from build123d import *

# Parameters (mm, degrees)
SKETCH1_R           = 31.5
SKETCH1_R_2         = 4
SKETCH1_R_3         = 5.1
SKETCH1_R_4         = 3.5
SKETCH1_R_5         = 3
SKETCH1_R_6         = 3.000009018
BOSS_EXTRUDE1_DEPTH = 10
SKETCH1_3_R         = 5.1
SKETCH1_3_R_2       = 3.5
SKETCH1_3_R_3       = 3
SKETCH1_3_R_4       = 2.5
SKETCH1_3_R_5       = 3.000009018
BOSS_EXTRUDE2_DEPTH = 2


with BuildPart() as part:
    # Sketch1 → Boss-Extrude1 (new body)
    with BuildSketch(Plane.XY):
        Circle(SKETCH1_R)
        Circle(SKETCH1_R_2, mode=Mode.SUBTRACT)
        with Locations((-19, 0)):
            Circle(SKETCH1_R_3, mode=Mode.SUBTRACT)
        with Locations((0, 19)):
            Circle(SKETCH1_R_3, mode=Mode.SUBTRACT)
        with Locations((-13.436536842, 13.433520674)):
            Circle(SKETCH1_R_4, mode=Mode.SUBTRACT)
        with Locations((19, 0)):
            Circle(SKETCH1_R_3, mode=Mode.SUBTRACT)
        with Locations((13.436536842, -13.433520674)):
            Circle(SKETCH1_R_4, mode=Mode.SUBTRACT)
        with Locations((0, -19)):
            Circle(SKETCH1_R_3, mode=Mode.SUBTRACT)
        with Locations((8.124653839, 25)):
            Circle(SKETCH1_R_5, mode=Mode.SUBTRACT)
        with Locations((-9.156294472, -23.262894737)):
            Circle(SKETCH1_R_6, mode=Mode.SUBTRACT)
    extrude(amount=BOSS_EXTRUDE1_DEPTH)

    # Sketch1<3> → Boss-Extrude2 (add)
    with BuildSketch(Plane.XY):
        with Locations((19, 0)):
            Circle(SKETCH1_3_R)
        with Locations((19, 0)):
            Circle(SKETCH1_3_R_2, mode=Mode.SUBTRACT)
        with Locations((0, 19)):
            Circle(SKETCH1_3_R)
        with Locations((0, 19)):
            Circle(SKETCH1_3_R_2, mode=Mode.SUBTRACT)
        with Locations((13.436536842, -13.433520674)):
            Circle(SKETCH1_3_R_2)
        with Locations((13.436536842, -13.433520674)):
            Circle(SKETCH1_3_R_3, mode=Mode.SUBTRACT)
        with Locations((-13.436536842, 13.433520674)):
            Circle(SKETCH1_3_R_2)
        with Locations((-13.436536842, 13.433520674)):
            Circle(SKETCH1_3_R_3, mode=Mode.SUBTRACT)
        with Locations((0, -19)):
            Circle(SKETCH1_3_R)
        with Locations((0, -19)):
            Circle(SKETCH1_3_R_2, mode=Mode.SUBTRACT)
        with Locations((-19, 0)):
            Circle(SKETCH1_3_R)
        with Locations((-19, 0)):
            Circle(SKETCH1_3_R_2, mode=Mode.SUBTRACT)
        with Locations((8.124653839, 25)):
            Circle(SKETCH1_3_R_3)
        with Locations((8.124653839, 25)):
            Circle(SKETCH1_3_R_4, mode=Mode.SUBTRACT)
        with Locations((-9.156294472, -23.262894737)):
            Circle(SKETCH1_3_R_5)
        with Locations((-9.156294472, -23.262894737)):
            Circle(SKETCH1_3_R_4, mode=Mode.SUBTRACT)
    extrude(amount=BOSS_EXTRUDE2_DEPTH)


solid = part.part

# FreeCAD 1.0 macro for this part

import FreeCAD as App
import Part
import Sketcher

doc = App.newDocument("Part")
body = doc.addObject("PartDesign::Body", "Body")

sketch1 = body.newObject("Sketcher::SketchObject", "Sketch")
sketch1.AttachmentSupport = (doc.getObject("XY_Plane"), [""])
sketch1.MapMode = "FlatFace"
sketch1.addGeometry([
    Part.Circle(App.Vector(0, 0, 0), App.Vector(0, 0, 1), 31.5),
    Part.Circle(App.Vector(-9.156294, -23.262895, 0), App.Vector(0, 0, 1), 3.000009),
    Part.Circle(App.Vector(-19, 0, 0), App.Vector(0, 0, 1), 5.1),
    Part.Circle(App.Vector(0, -19, 0), App.Vector(0, 0, 1), 5.1),
    Part.Circle(App.Vector(13.436537, -13.433521, 0), App.Vector(0, 0, 1), 3.5),
    Part.Circle(App.Vector(0, 0, 0), App.Vector(0, 0, 1), 4),
    Part.Circle(App.Vector(19, 0, 0), App.Vector(0, 0, 1), 5.1),
    Part.Circle(App.Vector(-13.436537, 13.433521, 0), App.Vector(0, 0, 1), 3.5),
    Part.Circle(App.Vector(0, 19, 0), App.Vector(0, 0, 1), 5.1),
    Part.Circle(App.Vector(8.124654, 25, 0), App.Vector(0, 0, 1), 3),
], False)
sketch1.addConstraint([
    Sketcher.Constraint("Coincident", 0, 3, -1, 1),
    Sketcher.Constraint("Coincident", 5, 3, -1, 1),
    Sketcher.Constraint("Equal", 2, 3),
    Sketcher.Constraint("Equal", 3, 6),
    Sketcher.Constraint("Equal", 4, 7),
    Sketcher.Constraint("Equal", 6, 8),
    Sketcher.Constraint("Symmetric", 2, 3, 6, 3, -1, 1),
    Sketcher.Constraint("Symmetric", 4, 3, 7, 3, -1, 1),
    Sketcher.Constraint("Symmetric", 3, 3, 8, 3, -1, 1),
    Sketcher.Constraint("PointOnObject", 2, 3, -1),
    Sketcher.Constraint("PointOnObject", 3, 3, -2),
    Sketcher.Constraint("Diameter", 0, 63.0),
    Sketcher.Constraint("Diameter", 4, 7.0),
    Sketcher.Constraint("Diameter", 5, 8.0),
    Sketcher.Constraint("Diameter", 9, 6.0),
    Sketcher.Constraint("Diameter", 2, 10.2),
    Sketcher.Constraint("DistanceX", 2, 3, -1, 1, 19.0),
    Sketcher.Constraint("DistanceY", 3, 3, -1, 1, 19.0),
    Sketcher.Constraint("DistanceY", -1, 1, 9, 3, 25.0),
    Sketcher.Constraint("Diameter", 1, 6.000018),
    Sketcher.Constraint("DistanceY", 4, 3, -1, 1, 13.433521),
    Sketcher.Constraint("DistanceX", 1, 3, 4, 3, 22.592831),
    Sketcher.Constraint("DistanceX", 7, 3, 9, 3, 21.561191),
    Sketcher.Constraint("DistanceX", 1, 3, -1, 1, 9.156294),
    Sketcher.Constraint("DistanceY", 1, 3, -1, 1, 23.262895),
])
pad1 = body.newObject("PartDesign::Pad", "Pad")
pad1.Profile = sketch1
pad1.Length = 10

sketch2 = body.newObject("Sketcher::SketchObject", "Sketch001")
sketch2.AttachmentSupport = (doc.getObject("XY_Plane"), [""])
sketch2.MapMode = "FlatFace"
sketch2.addGeometry([
    Part.Circle(App.Vector(19, 0, 0), App.Vector(0, 0, 1), 5.1),
    Part.Circle(App.Vector(19, 0, 0), App.Vector(0, 0, 1), 3.5),
    Part.Circle(App.Vector(0, 19, 0), App.Vector(0, 0, 1), 5.1),
    Part.Circle(App.Vector(0, 19, 0), App.Vector(0, 0, 1), 3.5),
    Part.Circle(App.Vector(13.436537, -13.433521, 0), App.Vector(0, 0, 1), 3.5),
    Part.Circle(App.Vector(13.436537, -13.433521, 0), App.Vector(0, 0, 1), 3),
    Part.Circle(App.Vector(-13.436537, 13.433521, 0), App.Vector(0, 0, 1), 3.5),
    Part.Circle(App.Vector(-13.436537, 13.433521, 0), App.Vector(0, 0, 1), 3),
    Part.Circle(App.Vector(0, -19, 0), App.Vector(0, 0, 1), 5.1),
    Part.Circle(App.Vector(0, -19, 0), App.Vector(0, 0, 1), 3.5),
    Part.Circle(App.Vector(-19, 0, 0), App.Vector(0, 0, 1), 5.1),
    Part.Circle(App.Vector(-19, 0, 0), App.Vector(0, 0, 1), 3.5),
    Part.Circle(App.Vector(8.124654, 25, 0), App.Vector(0, 0, 1), 3),
    Part.Circle(App.Vector(8.124654, 25, 0), App.Vector(0, 0, 1), 2.5),
    Part.Circle(App.Vector(-9.156294, -23.262895, 0), App.Vector(0, 0, 1), 3.000009),
    Part.Circle(App.Vector(-9.156294, -23.262895, 0), App.Vector(0, 0, 1), 2.5),
], False)
sketch2.addConstraint([
    Sketcher.Constraint("Coincident", 1, 3, 0, 3),
    Sketcher.Constraint("Coincident", 3, 3, 2, 3),
    Sketcher.Constraint("Coincident", 5, 3, 4, 3),
    Sketcher.Constraint("Coincident", 7, 3, 6, 3),
    Sketcher.Constraint("Coincident", 9, 3, 8, 3),
    Sketcher.Constraint("Coincident", 11, 3, 10, 3),
    Sketcher.Constraint("Coincident", 13, 3, 12, 3),
    Sketcher.Constraint("Coincident", 15, 3, 14, 3),
    Sketcher.Constraint("Equal", 0, 2),
    Sketcher.Constraint("Equal", 1, 3),
    Sketcher.Constraint("Equal", 3, 4),
    Sketcher.Constraint("Equal", 4, 6),
    Sketcher.Constraint("Equal", 5, 7),
    Sketcher.Constraint("Equal", 2, 8),
    Sketcher.Constraint("Equal", 6, 9),
    Sketcher.Constraint("Equal", 8, 10),
    Sketcher.Constraint("Equal", 9, 11),
    Sketcher.Constraint("Equal", 7, 12),
    Sketcher.Constraint("Equal", 13, 15),
    Sketcher.Constraint("Symmetric", 4, 3, 6, 3, -1, 1),
    Sketcher.Constraint("Symmetric", 2, 3, 8, 3, -1, 1),
    Sketcher.Constraint("Symmetric", 0, 3, 10, 3, -1, 1),
    Sketcher.Constraint("PointOnObject", 0, 3, -1),
    Sketcher.Constraint("PointOnObject", 2, 3, -2),
    Sketcher.Constraint("Diameter", 1, 7.0),
    Sketcher.Constraint("Diameter", 5, 6.0),
    Sketcher.Constraint("Diameter", 13, 5.0),
    Sketcher.Constraint("Diameter", 0, 10.2),
    Sketcher.Constraint("DistanceX", -1, 1, 0, 3, 19.0),
    Sketcher.Constraint("DistanceY", -1, 1, 2, 3, 19.0),
    Sketcher.Constraint("DistanceY", -1, 1, 12, 3, 25.0),
    Sketcher.Constraint("Diameter", 14, 6.000018),
    Sketcher.Constraint("DistanceY", 4, 3, -1, 1, 13.433521),
    Sketcher.Constraint("DistanceX", 6, 3, 12, 3, 21.561191),
    Sketcher.Constraint("DistanceX", 14, 3, 4, 3, 22.592831),
    Sketcher.Constraint("DistanceX", -1, 1, 4, 3, 13.436537),
    Sketcher.Constraint("DistanceY", 14, 3, -1, 1, 23.262895),
])
pad2 = body.newObject("PartDesign::Pad", "Pad001")
pad2.Profile = sketch2
pad2.Length = 2

doc.recompute()
